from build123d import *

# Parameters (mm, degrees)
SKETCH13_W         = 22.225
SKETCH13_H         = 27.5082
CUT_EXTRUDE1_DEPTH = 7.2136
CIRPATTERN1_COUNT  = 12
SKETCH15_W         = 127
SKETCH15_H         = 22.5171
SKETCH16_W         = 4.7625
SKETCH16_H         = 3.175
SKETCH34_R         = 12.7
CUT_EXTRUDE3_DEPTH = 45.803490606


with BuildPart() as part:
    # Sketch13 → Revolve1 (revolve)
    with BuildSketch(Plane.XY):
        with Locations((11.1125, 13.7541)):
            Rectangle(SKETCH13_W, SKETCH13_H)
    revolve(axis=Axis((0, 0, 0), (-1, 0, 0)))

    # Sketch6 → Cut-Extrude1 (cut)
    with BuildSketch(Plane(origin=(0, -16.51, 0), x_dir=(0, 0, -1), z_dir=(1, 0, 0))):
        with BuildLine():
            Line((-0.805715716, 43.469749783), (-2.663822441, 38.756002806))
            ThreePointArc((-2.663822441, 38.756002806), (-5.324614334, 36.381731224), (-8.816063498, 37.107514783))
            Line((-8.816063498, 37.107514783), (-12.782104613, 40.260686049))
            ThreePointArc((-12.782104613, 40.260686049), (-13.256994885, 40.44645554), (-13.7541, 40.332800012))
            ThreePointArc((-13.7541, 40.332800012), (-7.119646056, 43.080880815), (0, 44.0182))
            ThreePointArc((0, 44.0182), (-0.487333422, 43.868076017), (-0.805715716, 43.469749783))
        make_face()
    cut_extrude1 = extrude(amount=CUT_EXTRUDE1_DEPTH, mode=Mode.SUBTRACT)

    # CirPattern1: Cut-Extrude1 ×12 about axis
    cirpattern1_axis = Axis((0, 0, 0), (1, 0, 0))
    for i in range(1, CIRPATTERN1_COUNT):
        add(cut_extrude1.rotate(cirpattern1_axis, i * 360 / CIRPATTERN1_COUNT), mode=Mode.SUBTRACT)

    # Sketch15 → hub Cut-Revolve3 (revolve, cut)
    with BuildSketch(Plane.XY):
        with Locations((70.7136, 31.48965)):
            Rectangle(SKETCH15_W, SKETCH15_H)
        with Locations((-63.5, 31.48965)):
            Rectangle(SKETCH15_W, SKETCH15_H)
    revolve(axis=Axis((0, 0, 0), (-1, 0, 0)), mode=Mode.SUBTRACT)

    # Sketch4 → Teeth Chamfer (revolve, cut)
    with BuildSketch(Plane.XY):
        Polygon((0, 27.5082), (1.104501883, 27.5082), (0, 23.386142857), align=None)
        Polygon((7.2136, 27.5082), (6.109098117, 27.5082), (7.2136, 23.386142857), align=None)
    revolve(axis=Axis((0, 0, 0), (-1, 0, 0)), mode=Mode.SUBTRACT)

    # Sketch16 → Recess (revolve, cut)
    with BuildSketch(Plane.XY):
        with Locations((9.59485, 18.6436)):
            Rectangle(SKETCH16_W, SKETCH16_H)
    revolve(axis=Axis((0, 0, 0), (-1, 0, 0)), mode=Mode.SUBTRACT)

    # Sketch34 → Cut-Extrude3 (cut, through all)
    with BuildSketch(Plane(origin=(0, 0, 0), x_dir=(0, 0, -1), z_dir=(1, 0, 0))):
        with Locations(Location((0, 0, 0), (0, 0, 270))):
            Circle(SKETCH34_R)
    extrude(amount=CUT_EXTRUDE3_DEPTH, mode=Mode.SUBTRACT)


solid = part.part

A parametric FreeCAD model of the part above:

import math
import FreeCAD as App
import Part
import Sketcher
from FreeCAD import Vector
Q = App.Units.Quantity

doc = App.newDocument("Part")
body = doc.addObject("PartDesign::Body", "Body")

sketch1 = body.newObject("Sketcher::SketchObject", "Sketch")
sketch1.AttachmentSupport = (doc.getObject("XY_Plane"), [""])
sketch1.MapMode = "FlatFace"
sketch1.addGeometry([
    Part.LineSegment(Vector(0, 28, 0), Vector(0, 0, 0)),
    Part.LineSegment(Vector(0, 0, 0), Vector(22, 0, 0)),
    Part.LineSegment(Vector(22, 0, 0), Vector(22, 28, 0)),
    Part.LineSegment(Vector(22, 28, 0), Vector(0, 28, 0)),
], False)
sketch1.addConstraint([
    Sketcher.Constraint("Coincident", 0, 2, 1, 1),
    Sketcher.Constraint("Coincident", 1, 2, 2, 1),
    Sketcher.Constraint("Coincident", 2, 2, 3, 1),
    Sketcher.Constraint("Coincident", 3, 2, 0, 1),
    Sketcher.Constraint("Vertical", 0),
    Sketcher.Constraint("Horizontal", 1),
    Sketcher.Constraint("Vertical", 2),
    Sketcher.Constraint("Horizontal", 3),
    Sketcher.Constraint("Coincident", 0, 2, -1, 1),
    Sketcher.Constraint("DistanceX", 1, 1, 1, 2, Q("0.875 in")),
    Sketcher.Constraint("DistanceY", 0, 2, 0, 1, Q("1.083 in")),
])
revolution = body.newObject("PartDesign::Revolution", "Revolution")
revolution.Profile = sketch1
revolution.ReferenceAxis = (sketch1, ["H_Axis"])
revolution.Angle = 360

sketch2 = body.newObject("Sketcher::SketchObject", "Sketch001")
sketch2.AttachmentSupport = (doc.getObject("YZ_Plane"), [""])
sketch2.MapMode = "FlatFace"
sketch2.addGeometry([
    Part.LineSegment(Vector(22.2, 2.7, 0), Vector(27, 0.8, 0)),
    Part.ArcOfCircle(Part.Circle(Vector(26.6, 0, 0), Vector(0, 0, 1), 0.9), math.radians(0), math.radians(68)),
    Part.ArcOfCircle(Part.Circle(Vector(0, 0, 0), Vector(0, 0, 1), 27.5), math.radians(0), math.radians(30)),
    Part.ArcOfCircle(Part.Circle(Vector(23.1, 13.3, 0), Vector(0, 0, 1), 0.9), math.radians(-38), math.radians(30)),
    Part.LineSegment(Vector(23.8, 12.8, 0), Vector(20.6, 8.8, 0)),
    Part.ArcOfCircle(Part.Circle(Vector(23.7, 6.4, 0), Vector(0, 0, 1), 4), math.radians(142), math.radians(248)),
], False)
sketch2.addConstraint([
    Sketcher.Constraint("Tangent", 0, 2, 1, 2),
    Sketcher.Constraint("Tangent", 1, 1, 2, 1),
    Sketcher.Constraint("Tangent", 2, 2, 3, 2),
    Sketcher.Constraint("Tangent", 3, 1, 4, 1),
    Sketcher.Constraint("Tangent", 4, 2, 5, 1),
    Sketcher.Constraint("Tangent", 5, 2, 0, 1),
    Sketcher.Constraint("Coincident", 2, 3, -1, 1),
    Sketcher.Constraint("Equal", 1, 3),
    Sketcher.Constraint("PointOnObject", 1, 3, -1),
    Sketcher.Constraint("Equal", 0, 4),
    Sketcher.Constraint("Radius", 2, Q("1.083 in")),
    Sketcher.Constraint("Radius", 5, Q("0.156 in")),
    Sketcher.Constraint("DistanceY", -1, 1, 2, 2, Q("0.5415 in")),
    Sketcher.Constraint("Radius", 1, Q("0.866054 mm")),
    Sketcher.Constraint("DistanceX", 4, 2, 5, 3, Q("3.101601 mm")),
])
pocket1 = body.newObject("PartDesign::Pocket", "Pocket")
pocket1.Profile = sketch2
pocket1.Length = Q("0.284 in")
pocket1.Reversed = True
doc.recompute()

polarpattern = body.newObject("PartDesign::PolarPattern", "PolarPattern")
polarpattern.Originals = [pocket1]
polarpattern.Axis = (doc.getObject("X_Axis"), [""])
polarpattern.Angle = 360
polarpattern.Occurrences = 12
body.Tip = polarpattern

sketch3 = body.newObject("Sketcher::SketchObject", "Sketch002")
sketch3.AttachmentSupport = (doc.getObject("XY_Plane"), [""])
sketch3.MapMode = "FlatFace"
sketch3.addGeometry([
    Part.LineSegment(Vector(7, 43, 0), Vector(7, 20, 0)),
    Part.LineSegment(Vector(7, 20, 0), Vector(134, 20, 0)),
    Part.LineSegment(Vector(134, 20, 0), Vector(134, 43, 0)),
    Part.LineSegment(Vector(134, 43, 0), Vector(7, 43, 0)),
    Part.LineSegment(Vector(-127, 43, 0), Vector(-127, 20, 0)),
    Part.LineSegment(Vector(-127, 20, 0), Vector(0, 20, 0)),
    Part.LineSegment(Vector(0, 20, 0), Vector(0, 43, 0)),
    Part.LineSegment(Vector(0, 43, 0), Vector(-127, 43, 0)),
], False)
sketch3.addConstraint([
    Sketcher.Constraint("Coincident", 0, 2, 1, 1),
    Sketcher.Constraint("Coincident", 1, 2, 2, 1),
    Sketcher.Constraint("Coincident", 2, 2, 3, 1),
    Sketcher.Constraint("Coincident", 3, 2, 0, 1),
    Sketcher.Constraint("Coincident", 4, 2, 5, 1),
    Sketcher.Constraint("Coincident", 5, 2, 6, 1),
    Sketcher.Constraint("Coincident", 6, 2, 7, 1),
    Sketcher.Constraint("Coincident", 7, 2, 4, 1),
    Sketcher.Constraint("Vertical", 0),
    Sketcher.Constraint("Horizontal", 1),
    Sketcher.Constraint("Vertical", 2),
    Sketcher.Constraint("Horizontal", 3),
    Sketcher.Constraint("Vertical", 4),
    Sketcher.Constraint("Horizontal", 5),
    Sketcher.Constraint("Vertical", 6),
    Sketcher.Constraint("Horizontal", 7),
    Sketcher.Constraint("PointOnObject", 5, 2, -2),
    Sketcher.Constraint("Horizontal", 1, 2, 4, 2),
    Sketcher.Constraint("Horizontal", 3, 2, 6, 2),
    Sketcher.Constraint("Equal", 3, 5),
    Sketcher.Constraint("DistanceX", 1, 1, 1, 2, Q("5 in")),
    Sketcher.Constraint("DistanceY", 0, 2, 0, 1, Q("0.8865 in")),
    Sketcher.Constraint("DistanceX", -1, 1, 0, 2, Q("0.284 in")),
    Sketcher.Constraint("DistanceY", -1, 1, 2, 2, Q("1.683 in")),
])
groove = body.newObject("PartDesign::Groove", "Groove")
groove.Profile = sketch3
groove.ReferenceAxis = (sketch3, ["H_Axis"])
groove.Angle = 360

sketch4 = body.newObject("Sketcher::SketchObject", "Sketch003")
sketch4.AttachmentSupport = (doc.getObject("XY_Plane"), [""])
sketch4.MapMode = "FlatFace"
sketch4.addGeometry([
    Part.LineSegment(Vector(1.1, 27.5, 0), Vector(0, 27.5, 0)),
    Part.LineSegment(Vector(0, 27.5, 0), Vector(0, 23.4, 0)),
    Part.LineSegment(Vector(0, 23.4, 0), Vector(1.1, 27.5, 0)),
    Part.LineSegment(Vector(7.2, 27.5, 0), Vector(6.1, 27.5, 0)),
    Part.LineSegment(Vector(6.1, 27.5, 0), Vector(7.2, 23.4, 0)),
    Part.LineSegment(Vector(7.2, 23.4, 0), Vector(7.2, 27.5, 0)),
], False)
sketch4.addConstraint([
    Sketcher.Constraint("Coincident", 0, 2, 1, 1),
    Sketcher.Constraint("Coincident", 1, 2, 2, 1),
    Sketcher.Constraint("Coincident", 2, 2, 0, 1),
    Sketcher.Constraint("Coincident", 3, 2, 4, 1),
    Sketcher.Constraint("Coincident", 4, 2, 5, 1),
    Sketcher.Constraint("Coincident", 5, 2, 3, 1),
    Sketcher.Constraint("Horizontal", 0),
    Sketcher.Constraint("Vertical", 1),
    Sketcher.Constraint("Horizontal", 3),
    Sketcher.Constraint("Vertical", 5),
    Sketcher.Constraint("PointOnObject", 0, 2, -2),
    Sketcher.Constraint("Horizontal", 2, 2, 3, 2),
    Sketcher.Constraint("Horizontal", 1, 2, 4, 2),
    Sketcher.Constraint("Equal", 0, 3),
    Sketcher.Constraint("Angle", 2, Q("75 deg")),
    Sketcher.Constraint("DistanceY", -1, 1, 0, 2, Q("1.083 in")),
    Sketcher.Constraint("DistanceX", -1, 1, 4, 2, Q("0.284 in")),
    Sketcher.Constraint("DistanceX", 0, 2, 0, 1, Q("1.104502 mm")),
])
groove2 = body.newObject("PartDesign::Groove", "Groove001")
groove2.Profile = sketch4
groove2.ReferenceAxis = (sketch4, ["H_Axis"])
groove2.Angle = 360

sketch5 = body.newObject("Sketcher::SketchObject", "Sketch004")
sketch5.AttachmentSupport = (doc.getObject("XY_Plane"), [""])
sketch5.MapMode = "FlatFace"
sketch5.addGeometry([
    Part.LineSegment(Vector(7.2, 20.2, 0), Vector(7.2, 17.1, 0)),
    Part.LineSegment(Vector(7.2, 17.1, 0), Vector(12, 17.1, 0)),
    Part.LineSegment(Vector(12, 17.1, 0), Vector(12, 20.2, 0)),
    Part.LineSegment(Vector(12, 20.2, 0), Vector(7.2, 20.2, 0)),
], False)
sketch5.addConstraint([
    Sketcher.Constraint("Coincident", 0, 2, 1, 1),
    Sketcher.Constraint("Coincident", 1, 2, 2, 1),
    Sketcher.Constraint("Coincident", 2, 2, 3, 1),
    Sketcher.Constraint("Coincident", 3, 2, 0, 1),
    Sketcher.Constraint("Vertical", 0),
    Sketcher.Constraint("Horizontal", 1),
    Sketcher.Constraint("Vertical", 2),
    Sketcher.Constraint("Horizontal", 3),
    Sketcher.Constraint("DistanceX", 1, 1, 1, 2, Q("0.1875 in")),
    Sketcher.Constraint("DistanceY", 0, 2, 0, 1, Q("0.125 in")),
    Sketcher.Constraint("DistanceX", -1, 1, 0, 2, Q("0.284 in")),
    Sketcher.Constraint("DistanceY", -1, 1, 0, 2, Q("0.6715 in")),
])
groove3 = body.newObject("PartDesign::Groove", "Groove002")
groove3.Profile = sketch5
groove3.ReferenceAxis = (sketch5, ["H_Axis"])
groove3.Angle = 360

sketch6 = body.newObject("Sketcher::SketchObject", "Sketch005")
sketch6.AttachmentSupport = (doc.getObject("YZ_Plane"), [""])
sketch6.MapMode = "FlatFace"
sketch6.addGeometry(Part.Circle(Vector(0, 0, 0), Vector(0, 0, 1), 13), False)
sketch6.addConstraint([
    Sketcher.Constraint("Coincident", 0, 3, -1, 1),
    Sketcher.Constraint("Diameter", 0, Q("1 in")),
])
pocket2 = body.newObject("PartDesign::Pocket", "Pocket001")
pocket2.Profile = sketch6
pocket2.Type = "ThroughAll"
pocket2.Reversed = True

doc.recompute()
